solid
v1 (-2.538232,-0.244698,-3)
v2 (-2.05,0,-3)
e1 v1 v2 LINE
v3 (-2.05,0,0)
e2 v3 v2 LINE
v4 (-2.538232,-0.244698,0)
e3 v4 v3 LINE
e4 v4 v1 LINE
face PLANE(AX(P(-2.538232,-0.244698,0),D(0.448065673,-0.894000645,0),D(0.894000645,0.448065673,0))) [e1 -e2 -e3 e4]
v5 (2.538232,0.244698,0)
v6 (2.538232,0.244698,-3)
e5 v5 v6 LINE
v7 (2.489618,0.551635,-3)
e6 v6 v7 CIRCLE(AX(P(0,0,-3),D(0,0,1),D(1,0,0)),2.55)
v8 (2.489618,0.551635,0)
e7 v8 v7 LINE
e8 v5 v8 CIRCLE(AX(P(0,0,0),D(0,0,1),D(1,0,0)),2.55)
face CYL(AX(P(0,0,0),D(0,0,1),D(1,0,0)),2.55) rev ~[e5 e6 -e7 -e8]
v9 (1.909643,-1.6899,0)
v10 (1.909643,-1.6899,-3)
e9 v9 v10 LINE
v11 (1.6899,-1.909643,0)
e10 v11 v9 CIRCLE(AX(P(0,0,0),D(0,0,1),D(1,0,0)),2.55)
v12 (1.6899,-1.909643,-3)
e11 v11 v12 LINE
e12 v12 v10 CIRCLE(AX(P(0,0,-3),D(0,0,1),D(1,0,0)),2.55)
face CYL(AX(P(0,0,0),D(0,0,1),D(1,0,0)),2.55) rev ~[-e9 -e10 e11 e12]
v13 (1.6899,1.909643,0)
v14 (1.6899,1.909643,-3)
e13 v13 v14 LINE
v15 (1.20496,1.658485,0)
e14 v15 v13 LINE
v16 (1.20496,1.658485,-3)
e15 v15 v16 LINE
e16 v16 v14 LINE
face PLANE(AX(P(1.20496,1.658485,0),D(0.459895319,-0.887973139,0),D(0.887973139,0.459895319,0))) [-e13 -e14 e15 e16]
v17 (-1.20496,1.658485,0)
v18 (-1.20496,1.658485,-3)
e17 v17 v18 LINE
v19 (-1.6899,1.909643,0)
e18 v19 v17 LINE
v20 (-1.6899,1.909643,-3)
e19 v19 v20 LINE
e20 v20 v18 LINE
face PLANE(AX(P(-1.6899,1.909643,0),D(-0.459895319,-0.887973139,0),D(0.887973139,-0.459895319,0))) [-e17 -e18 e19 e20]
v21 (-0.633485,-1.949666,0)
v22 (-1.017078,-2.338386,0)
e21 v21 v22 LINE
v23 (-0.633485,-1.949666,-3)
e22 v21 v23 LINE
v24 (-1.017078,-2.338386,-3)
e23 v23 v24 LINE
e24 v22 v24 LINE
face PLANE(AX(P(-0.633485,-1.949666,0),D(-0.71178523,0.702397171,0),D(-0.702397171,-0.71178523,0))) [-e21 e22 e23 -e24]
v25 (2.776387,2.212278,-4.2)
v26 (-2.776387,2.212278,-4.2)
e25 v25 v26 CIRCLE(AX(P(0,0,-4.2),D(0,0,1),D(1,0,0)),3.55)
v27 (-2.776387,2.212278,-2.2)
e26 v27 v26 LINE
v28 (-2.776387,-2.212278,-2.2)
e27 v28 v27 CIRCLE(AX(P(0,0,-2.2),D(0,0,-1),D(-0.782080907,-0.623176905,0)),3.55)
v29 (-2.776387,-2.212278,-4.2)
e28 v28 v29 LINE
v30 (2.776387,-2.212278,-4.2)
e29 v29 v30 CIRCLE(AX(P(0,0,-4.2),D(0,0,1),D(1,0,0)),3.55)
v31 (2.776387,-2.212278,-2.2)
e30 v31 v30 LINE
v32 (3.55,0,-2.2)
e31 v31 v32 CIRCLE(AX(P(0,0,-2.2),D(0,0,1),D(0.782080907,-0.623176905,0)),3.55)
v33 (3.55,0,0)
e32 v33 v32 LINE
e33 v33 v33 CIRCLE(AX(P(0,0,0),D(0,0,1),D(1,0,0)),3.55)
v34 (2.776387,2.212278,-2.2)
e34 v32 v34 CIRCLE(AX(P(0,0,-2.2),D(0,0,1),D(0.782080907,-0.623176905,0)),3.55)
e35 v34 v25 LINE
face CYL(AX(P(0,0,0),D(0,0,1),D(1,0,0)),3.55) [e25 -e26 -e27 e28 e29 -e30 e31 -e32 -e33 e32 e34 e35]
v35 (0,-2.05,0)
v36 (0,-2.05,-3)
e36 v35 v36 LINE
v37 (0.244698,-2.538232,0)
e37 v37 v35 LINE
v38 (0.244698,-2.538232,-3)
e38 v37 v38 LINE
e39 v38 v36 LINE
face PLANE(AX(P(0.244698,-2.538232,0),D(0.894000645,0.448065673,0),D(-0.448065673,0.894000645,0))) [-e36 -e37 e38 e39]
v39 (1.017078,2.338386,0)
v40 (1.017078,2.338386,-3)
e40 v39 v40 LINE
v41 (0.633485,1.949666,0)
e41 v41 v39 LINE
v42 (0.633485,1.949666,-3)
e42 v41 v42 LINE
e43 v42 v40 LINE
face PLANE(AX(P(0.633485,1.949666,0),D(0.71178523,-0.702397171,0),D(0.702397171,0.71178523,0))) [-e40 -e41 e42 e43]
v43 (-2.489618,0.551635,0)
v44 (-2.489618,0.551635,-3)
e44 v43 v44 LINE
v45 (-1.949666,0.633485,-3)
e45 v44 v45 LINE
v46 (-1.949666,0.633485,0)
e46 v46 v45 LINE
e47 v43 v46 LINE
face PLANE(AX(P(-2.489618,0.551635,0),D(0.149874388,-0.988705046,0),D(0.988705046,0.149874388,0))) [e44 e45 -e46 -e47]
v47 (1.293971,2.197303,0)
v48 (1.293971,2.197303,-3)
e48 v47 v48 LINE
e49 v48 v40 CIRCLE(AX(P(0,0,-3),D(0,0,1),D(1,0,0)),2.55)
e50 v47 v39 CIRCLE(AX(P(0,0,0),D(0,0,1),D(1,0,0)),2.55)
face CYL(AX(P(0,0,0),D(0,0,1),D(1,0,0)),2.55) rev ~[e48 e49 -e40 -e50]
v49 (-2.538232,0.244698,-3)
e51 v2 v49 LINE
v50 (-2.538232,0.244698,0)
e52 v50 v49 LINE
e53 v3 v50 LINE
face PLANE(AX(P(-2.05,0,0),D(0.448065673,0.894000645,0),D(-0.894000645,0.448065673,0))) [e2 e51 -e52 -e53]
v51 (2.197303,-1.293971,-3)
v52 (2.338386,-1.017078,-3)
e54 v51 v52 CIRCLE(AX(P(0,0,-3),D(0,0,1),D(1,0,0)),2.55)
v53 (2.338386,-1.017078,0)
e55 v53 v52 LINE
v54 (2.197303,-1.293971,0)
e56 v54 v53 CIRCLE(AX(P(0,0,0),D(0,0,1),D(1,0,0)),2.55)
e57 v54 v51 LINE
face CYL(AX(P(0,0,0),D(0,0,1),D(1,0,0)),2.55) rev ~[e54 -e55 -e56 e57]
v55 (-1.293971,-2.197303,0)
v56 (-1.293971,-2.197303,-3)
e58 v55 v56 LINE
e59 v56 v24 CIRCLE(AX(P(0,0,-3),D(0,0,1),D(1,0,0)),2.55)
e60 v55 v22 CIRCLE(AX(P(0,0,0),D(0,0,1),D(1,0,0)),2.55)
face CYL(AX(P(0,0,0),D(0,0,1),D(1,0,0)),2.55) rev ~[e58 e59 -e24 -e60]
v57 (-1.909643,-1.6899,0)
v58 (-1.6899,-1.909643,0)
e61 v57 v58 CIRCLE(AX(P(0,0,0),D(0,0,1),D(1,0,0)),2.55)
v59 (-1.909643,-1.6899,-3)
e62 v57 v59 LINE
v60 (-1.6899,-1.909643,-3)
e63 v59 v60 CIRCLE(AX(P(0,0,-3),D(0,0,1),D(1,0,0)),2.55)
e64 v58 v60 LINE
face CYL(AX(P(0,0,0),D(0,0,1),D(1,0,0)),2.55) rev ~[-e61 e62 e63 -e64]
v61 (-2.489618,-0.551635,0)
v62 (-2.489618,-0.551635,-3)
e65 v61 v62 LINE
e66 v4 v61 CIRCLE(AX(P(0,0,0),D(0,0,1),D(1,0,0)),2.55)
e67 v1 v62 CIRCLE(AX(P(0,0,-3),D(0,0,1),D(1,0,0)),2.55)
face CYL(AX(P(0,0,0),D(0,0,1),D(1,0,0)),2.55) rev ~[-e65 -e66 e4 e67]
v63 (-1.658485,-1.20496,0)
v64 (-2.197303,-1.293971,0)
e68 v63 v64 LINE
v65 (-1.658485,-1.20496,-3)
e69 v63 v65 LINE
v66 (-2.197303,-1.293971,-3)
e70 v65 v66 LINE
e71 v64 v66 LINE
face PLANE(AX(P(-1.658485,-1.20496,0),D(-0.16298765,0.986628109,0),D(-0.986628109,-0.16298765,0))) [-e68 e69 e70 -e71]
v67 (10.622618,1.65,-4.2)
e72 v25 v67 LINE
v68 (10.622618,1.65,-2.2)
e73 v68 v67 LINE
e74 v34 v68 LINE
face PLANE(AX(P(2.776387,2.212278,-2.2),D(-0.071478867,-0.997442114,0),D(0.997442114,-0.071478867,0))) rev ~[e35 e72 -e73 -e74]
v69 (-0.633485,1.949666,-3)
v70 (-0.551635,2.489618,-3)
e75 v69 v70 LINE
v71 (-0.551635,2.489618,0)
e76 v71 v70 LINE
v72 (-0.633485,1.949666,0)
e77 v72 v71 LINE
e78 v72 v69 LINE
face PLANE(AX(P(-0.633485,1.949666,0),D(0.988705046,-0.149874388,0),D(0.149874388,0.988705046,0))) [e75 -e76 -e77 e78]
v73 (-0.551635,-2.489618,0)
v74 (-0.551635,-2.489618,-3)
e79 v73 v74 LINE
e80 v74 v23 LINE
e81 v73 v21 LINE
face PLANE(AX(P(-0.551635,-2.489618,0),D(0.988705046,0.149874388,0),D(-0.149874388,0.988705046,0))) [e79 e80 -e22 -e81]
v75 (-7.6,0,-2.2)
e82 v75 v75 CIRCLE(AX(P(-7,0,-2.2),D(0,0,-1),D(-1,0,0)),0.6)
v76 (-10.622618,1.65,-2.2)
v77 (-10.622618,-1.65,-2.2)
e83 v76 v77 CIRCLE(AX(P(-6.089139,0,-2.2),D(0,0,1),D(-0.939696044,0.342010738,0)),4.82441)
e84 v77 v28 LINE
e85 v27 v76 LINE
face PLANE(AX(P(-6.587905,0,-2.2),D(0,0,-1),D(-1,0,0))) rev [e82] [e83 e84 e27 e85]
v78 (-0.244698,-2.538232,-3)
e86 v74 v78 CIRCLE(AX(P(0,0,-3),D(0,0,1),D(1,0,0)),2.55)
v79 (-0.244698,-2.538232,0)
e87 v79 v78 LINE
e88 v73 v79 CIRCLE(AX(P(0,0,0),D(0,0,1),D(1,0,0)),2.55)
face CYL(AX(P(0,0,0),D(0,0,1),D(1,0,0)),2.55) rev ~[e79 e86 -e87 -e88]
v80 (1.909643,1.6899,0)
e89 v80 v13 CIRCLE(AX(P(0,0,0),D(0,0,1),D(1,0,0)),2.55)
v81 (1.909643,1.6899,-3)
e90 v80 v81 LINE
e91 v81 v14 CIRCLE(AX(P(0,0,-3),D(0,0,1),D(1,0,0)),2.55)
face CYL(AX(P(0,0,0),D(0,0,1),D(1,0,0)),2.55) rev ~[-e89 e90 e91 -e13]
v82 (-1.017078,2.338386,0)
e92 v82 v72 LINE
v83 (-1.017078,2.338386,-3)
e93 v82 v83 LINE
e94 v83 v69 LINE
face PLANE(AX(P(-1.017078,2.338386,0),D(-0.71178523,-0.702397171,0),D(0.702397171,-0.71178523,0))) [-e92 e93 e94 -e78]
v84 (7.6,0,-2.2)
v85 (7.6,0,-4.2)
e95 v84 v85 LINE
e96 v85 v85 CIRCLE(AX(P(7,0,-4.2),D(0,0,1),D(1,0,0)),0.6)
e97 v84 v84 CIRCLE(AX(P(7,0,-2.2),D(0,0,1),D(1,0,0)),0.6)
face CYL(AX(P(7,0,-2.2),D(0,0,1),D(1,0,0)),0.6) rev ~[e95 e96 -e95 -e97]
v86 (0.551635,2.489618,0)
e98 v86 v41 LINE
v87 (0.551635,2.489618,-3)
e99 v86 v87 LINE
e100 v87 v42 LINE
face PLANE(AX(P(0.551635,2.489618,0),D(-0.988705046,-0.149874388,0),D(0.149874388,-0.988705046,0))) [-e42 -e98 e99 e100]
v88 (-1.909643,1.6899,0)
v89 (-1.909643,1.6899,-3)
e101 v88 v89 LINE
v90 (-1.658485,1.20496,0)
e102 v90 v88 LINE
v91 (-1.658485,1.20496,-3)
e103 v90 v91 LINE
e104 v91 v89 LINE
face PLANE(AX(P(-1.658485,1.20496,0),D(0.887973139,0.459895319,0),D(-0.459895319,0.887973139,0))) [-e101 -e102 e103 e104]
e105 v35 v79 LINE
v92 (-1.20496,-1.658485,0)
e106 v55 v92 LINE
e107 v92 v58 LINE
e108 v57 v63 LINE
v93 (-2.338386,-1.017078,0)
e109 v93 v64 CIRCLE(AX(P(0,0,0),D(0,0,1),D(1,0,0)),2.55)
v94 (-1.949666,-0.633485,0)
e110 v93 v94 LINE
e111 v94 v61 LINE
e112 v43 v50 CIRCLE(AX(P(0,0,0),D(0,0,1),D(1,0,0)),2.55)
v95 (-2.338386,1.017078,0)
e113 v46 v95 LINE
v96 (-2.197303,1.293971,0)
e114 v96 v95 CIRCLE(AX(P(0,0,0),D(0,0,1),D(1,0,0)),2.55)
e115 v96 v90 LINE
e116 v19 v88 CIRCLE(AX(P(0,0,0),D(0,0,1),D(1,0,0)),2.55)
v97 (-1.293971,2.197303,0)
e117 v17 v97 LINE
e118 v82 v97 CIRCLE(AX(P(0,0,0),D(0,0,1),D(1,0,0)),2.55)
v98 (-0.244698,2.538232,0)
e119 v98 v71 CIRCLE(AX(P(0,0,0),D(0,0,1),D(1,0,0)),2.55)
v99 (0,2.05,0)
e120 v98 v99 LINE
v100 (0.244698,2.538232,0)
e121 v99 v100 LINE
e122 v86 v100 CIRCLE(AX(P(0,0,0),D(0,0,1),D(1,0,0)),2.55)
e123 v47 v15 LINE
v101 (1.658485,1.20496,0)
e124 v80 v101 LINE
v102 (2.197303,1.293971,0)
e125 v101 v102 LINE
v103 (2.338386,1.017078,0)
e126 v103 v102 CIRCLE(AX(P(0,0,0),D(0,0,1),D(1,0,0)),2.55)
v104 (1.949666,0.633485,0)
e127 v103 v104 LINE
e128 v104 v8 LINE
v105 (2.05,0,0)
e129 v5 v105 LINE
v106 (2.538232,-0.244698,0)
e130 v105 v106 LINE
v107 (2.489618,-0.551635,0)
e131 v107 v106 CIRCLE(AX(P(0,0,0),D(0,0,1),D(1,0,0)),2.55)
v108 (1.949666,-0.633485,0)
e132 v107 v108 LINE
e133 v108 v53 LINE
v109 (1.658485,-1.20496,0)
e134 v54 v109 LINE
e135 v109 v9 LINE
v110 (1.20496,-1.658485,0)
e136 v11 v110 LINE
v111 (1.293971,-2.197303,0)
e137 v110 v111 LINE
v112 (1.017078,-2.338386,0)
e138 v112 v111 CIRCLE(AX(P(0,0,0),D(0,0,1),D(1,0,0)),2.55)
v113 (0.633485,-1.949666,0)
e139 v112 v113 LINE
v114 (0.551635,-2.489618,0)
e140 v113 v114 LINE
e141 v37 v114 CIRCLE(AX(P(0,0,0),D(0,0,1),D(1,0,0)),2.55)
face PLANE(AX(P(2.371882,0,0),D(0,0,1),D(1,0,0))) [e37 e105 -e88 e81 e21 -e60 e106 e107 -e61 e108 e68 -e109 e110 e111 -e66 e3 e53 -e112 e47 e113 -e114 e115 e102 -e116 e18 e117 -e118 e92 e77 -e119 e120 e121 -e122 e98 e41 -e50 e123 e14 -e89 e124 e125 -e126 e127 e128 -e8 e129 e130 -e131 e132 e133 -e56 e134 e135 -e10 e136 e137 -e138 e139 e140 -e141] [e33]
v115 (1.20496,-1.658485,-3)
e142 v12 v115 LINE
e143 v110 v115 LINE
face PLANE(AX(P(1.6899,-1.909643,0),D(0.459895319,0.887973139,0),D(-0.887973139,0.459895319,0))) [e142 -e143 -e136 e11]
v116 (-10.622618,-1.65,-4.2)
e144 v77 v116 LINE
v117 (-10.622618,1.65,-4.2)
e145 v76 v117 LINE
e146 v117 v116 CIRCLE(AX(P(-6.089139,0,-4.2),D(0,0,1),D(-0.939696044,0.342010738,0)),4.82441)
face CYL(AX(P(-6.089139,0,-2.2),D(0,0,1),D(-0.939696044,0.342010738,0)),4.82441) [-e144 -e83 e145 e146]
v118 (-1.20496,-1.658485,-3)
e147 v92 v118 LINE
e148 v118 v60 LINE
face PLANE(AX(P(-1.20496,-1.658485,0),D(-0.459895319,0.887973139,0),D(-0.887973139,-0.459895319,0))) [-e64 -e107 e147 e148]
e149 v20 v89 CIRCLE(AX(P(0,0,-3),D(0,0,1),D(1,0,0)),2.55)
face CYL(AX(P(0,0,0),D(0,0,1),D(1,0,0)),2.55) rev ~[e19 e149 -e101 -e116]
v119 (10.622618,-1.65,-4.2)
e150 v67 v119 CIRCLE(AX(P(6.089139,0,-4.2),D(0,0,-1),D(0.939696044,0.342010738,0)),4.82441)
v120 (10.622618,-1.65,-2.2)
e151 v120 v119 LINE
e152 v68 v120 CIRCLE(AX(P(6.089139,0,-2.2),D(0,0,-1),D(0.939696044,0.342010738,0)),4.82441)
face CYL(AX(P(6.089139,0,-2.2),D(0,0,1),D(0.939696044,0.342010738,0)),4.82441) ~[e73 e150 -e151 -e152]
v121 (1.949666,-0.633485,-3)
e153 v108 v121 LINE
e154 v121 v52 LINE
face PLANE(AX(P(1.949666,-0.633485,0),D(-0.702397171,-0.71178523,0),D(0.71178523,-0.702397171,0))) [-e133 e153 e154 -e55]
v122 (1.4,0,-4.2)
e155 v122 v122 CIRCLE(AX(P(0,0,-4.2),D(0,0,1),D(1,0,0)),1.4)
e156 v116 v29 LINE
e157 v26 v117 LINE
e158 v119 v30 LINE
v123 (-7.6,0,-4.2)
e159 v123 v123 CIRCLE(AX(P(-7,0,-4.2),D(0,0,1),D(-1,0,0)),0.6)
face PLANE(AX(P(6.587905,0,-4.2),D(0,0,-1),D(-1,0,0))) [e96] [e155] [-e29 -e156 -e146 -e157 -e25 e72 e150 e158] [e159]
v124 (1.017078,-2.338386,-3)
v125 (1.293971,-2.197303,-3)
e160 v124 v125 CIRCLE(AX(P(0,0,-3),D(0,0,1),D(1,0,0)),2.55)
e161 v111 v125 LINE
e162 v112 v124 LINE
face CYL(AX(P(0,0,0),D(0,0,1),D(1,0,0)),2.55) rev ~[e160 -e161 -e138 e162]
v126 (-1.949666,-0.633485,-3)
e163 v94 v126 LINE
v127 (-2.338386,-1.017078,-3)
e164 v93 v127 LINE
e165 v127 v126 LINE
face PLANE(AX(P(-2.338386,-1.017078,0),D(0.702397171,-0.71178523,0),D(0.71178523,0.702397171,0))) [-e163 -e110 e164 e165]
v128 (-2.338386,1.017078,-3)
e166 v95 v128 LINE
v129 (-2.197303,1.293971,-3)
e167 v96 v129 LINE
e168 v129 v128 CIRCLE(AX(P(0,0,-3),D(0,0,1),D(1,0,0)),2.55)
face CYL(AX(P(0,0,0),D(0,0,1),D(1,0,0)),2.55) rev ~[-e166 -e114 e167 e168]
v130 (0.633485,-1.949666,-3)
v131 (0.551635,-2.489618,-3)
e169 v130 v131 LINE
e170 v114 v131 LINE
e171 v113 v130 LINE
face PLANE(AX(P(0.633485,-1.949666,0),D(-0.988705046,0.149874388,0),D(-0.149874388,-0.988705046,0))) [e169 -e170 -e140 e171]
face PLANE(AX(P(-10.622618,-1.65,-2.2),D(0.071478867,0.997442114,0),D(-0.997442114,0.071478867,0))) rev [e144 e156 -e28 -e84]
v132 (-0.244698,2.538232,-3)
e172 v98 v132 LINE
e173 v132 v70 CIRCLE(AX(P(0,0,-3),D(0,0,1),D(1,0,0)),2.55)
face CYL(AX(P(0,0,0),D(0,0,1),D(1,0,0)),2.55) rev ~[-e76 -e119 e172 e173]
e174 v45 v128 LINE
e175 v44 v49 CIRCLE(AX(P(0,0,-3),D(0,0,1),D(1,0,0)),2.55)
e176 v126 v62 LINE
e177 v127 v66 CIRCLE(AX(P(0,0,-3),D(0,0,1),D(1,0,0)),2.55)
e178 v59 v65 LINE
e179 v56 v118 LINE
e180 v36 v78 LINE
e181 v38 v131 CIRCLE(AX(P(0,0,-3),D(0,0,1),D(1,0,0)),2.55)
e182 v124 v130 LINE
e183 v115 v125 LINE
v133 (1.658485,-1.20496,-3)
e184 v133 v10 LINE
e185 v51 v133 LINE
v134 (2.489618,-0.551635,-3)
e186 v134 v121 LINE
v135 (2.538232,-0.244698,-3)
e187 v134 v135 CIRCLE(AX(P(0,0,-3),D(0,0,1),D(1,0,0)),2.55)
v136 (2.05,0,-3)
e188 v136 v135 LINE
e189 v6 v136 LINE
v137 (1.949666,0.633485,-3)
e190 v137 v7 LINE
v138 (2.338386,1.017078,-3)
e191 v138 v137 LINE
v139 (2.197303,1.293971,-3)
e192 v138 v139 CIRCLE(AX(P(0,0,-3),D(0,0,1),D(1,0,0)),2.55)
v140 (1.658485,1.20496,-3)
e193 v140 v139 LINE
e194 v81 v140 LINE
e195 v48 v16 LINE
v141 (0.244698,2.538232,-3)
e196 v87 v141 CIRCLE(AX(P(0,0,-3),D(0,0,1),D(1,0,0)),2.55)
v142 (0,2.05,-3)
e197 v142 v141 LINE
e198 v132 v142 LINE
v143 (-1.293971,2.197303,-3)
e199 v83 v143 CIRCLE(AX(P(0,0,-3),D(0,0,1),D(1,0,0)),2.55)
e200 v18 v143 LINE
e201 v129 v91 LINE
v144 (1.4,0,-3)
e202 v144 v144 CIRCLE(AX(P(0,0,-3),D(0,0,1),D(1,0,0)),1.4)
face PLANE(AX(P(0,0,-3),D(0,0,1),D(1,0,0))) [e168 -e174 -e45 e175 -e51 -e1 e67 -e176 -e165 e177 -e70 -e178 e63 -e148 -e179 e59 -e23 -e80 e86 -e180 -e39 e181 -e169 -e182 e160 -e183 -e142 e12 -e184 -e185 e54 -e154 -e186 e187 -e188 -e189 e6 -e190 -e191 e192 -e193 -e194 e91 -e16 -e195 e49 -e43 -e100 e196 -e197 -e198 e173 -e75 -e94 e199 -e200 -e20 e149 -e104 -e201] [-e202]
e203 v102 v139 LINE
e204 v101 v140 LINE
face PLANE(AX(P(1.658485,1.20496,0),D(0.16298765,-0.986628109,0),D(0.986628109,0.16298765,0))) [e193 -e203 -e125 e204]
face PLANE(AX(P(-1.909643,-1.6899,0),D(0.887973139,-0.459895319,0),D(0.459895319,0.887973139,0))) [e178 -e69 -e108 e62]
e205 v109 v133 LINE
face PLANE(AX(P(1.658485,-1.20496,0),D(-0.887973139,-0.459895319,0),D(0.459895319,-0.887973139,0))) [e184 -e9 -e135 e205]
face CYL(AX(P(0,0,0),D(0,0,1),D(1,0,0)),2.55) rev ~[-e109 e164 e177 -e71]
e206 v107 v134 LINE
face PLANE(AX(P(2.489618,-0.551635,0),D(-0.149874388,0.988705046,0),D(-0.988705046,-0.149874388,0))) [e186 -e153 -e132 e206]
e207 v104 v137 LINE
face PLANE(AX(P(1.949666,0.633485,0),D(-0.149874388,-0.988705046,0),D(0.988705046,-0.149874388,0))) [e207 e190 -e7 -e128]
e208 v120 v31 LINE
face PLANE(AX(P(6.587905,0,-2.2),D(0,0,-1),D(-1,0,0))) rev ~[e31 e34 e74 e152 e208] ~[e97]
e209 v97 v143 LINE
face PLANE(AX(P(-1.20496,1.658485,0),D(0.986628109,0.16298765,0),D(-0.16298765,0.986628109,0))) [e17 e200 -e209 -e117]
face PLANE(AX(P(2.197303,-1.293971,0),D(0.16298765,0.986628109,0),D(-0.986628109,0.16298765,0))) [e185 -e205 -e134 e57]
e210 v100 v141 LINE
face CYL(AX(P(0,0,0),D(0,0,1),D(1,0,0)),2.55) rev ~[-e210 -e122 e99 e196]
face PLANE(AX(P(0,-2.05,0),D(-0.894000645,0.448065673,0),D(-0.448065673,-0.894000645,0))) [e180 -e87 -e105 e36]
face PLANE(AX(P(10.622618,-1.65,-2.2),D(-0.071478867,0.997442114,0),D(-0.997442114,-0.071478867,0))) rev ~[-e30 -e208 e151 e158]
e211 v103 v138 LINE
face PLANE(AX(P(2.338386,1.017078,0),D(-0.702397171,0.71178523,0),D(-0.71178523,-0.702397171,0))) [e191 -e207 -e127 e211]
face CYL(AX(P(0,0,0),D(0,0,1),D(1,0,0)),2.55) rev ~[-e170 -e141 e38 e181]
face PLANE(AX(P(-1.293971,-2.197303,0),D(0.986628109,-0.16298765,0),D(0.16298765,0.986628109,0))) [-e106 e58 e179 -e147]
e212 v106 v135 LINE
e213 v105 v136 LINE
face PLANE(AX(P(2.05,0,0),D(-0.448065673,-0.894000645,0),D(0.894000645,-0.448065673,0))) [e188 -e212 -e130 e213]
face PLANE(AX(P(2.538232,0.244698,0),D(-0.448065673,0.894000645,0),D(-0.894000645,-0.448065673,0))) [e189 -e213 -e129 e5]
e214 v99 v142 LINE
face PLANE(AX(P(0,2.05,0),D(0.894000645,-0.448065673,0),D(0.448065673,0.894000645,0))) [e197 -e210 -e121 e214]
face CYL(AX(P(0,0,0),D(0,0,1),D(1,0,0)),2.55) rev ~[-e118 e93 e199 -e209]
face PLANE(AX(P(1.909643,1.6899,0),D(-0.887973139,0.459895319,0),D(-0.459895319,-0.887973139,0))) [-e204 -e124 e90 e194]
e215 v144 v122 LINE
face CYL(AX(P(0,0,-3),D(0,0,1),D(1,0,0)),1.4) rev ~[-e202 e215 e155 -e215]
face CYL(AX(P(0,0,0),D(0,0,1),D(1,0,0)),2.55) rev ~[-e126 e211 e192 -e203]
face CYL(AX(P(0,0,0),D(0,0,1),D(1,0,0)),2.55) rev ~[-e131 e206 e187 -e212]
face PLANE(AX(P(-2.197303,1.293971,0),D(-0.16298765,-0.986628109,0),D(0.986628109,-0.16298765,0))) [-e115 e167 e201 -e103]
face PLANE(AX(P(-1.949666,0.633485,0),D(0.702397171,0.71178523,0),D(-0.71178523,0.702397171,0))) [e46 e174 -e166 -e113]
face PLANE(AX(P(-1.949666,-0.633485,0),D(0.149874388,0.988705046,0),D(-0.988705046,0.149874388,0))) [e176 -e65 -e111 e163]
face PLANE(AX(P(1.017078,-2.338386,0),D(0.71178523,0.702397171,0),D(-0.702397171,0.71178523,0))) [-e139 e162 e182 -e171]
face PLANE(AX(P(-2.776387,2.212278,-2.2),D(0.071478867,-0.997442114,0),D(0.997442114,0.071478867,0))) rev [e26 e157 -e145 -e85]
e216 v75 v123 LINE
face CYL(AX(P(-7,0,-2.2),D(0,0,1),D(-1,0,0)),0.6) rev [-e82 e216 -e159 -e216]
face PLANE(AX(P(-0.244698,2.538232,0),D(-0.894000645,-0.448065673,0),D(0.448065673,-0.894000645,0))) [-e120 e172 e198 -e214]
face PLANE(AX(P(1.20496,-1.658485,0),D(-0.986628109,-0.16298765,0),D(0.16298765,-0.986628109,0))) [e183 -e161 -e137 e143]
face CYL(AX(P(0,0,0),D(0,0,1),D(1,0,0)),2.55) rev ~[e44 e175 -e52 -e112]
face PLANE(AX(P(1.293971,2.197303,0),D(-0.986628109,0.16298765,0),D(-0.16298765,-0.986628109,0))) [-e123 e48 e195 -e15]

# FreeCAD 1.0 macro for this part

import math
import FreeCAD as App
import Part
import Sketcher

V = App.Vector
Q = App.Units.Quantity

doc = App.newDocument("Part")
body = doc.addObject("PartDesign::Body", "Body")

# Sketch on XY plane
sketch1 = body.newObject("Sketcher::SketchObject", "Sketch")
sketch1.AttachmentSupport = (doc.getObject("XY_Plane"), [""])
sketch1.MapMode = "FlatFace"
sketch1.addGeometry(Part.Circle(V(0, 0, 0), V(0, 0, 1), 3.55), False)
sketch1.addConstraint(Sketcher.Constraint("Coincident", 0, 3, -1, 1))
sketch1.addConstraint(Sketcher.Constraint("Diameter", 0, Q("7.1 mm")))
pad1 = body.newObject("PartDesign::Pad", "Pad")
pad1.Profile = sketch1
pad1.Length = 4.2
pad1.Reversed = True

# Sketch on XY plane
sketch2 = body.newObject("Sketcher::SketchObject", "Sketch001")
sketch2.AttachmentSupport = (doc.getObject("XY_Plane"), [""])
sketch2.MapMode = "FlatFace"
sketch2.AttachmentOffset = App.Placement(V(0, 0, -2.2), App.Rotation())
sketch2.addGeometry(Part.LineSegment(V(10.622618, 1.65, 0), V(2.776387, 2.212278, 0)), False)
sketch2.addGeometry(Part.ArcOfCircle(Part.Circle(V(0, 0, 0), V(0, 0, 1), 3.55), math.radians(-38.548502), math.radians(38.548502)), False)
sketch2.addGeometry(Part.LineSegment(V(2.776387, -2.212278, 0), V(10.622618, -1.65, 0)), False)
sketch2.addGeometry(Part.ArcOfCircle(Part.Circle(V(6.089139, 0, 0), V(0, 0, 1), 4.82441), math.radians(-19.999427), math.radians(19.999427)), False)
sketch2.addConstraint(Sketcher.Constraint("Coincident", 0, 2, 1, 2))
sketch2.addConstraint(Sketcher.Constraint("Coincident", 1, 1, 2, 1))
sketch2.addConstraint(Sketcher.Constraint("Coincident", 2, 2, 3, 1))
sketch2.addConstraint(Sketcher.Constraint("Coincident", 3, 2, 0, 1))
sketch2.addConstraint(Sketcher.Constraint("Coincident", 1, 3, -1, 1))
sketch2.addConstraint(Sketcher.Constraint("Symmetric", 2, 2, 3, 2, -1))
sketch2.addConstraint(Sketcher.Constraint("Vertical", 0, 2, 1, 1))
sketch2.addConstraint(Sketcher.Constraint("Radius", 1, Q("3.55 mm")))
sketch2.addConstraint(Sketcher.Constraint("DistanceY", 2, 2, 3, 2, Q("3.3 mm")))
sketch2.addConstraint(Sketcher.Constraint("Radius", 3, Q("4.82441 mm")))
sketch2.addConstraint(Sketcher.Constraint("Distance", 0, Q("7.866352 mm")))
sketch2.addConstraint(Sketcher.Constraint("DistanceX", -1, 1, 3, 3, Q("6.089139 mm")))
pad2 = body.newObject("PartDesign::Pad", "Pad001")
pad2.Profile = sketch2
pad2.Length = 2
pad2.Reversed = True

# Sketch on XY plane
sketch3 = body.newObject("Sketcher::SketchObject", "Sketch002")
sketch3.AttachmentSupport = (doc.getObject("XY_Plane"), [""])
sketch3.MapMode = "FlatFace"
sketch3.addGeometry(Part.Circle(V(0, 0, 0), V(0, 0, 1), 2.55), False)
sketch3.addConstraint(Sketcher.Constraint("Coincident", 0, 3, -1, 1))
sketch3.addConstraint(Sketcher.Constraint("Diameter", 0, Q("5.1 mm")))
pocket1 = body.newObject("PartDesign::Pocket", "Pocket")
pocket1.Profile = sketch3
pocket1.Length = 3

# Sketch on XY plane
sketch4 = body.newObject("Sketcher::SketchObject", "Sketch003")
sketch4.AttachmentSupport = (doc.getObject("XY_Plane"), [""])
sketch4.MapMode = "FlatFace"
sketch4.addGeometry(Part.LineSegment(V(-0.244698, 2.538232, 0), V(0, 2.05, 0)), False)
sketch4.addGeometry(Part.LineSegment(V(0, 2.05, 0), V(0.244698, 2.538232, 0)), False)
sketch4.addGeometry(Part.ArcOfCircle(Part.Circle(V(0, 0, 0), V(0, 0, 1), 2.55), math.radians(84.493426), math.radians(95.506574)), False)
sketch4.addGeometry(Part.LineSegment(V(0.551635, 2.489618, 0), V(0.633485, 1.949666, 0)), False)
sketch4.addGeometry(Part.LineSegment(V(0.633485, 1.949666, 0), V(1.017078, 2.338386, 0)), False)
sketch4.addGeometry(Part.ArcOfCircle(Part.Circle(V(0, 0, 0), V(0, 0, 1), 2.55), math.radians(66.493425), math.radians(77.506575)), False)
sketch4.addGeometry(Part.LineSegment(V(1.293971, 2.197303, 0), V(1.20496, 1.658485, 0)), False)
sketch4.addGeometry(Part.LineSegment(V(1.20496, 1.658485, 0), V(1.6899, 1.909643, 0)), False)
sketch4.addGeometry(Part.ArcOfCircle(Part.Circle(V(0, 0, 0), V(0, 0, 1), 2.55), math.radians(48.493426), math.radians(59.506574)), False)
sketch4.addGeometry(Part.LineSegment(V(1.909643, 1.6899, 0), V(1.658485, 1.20496, 0)), False)
sketch4.addGeometry(Part.LineSegment(V(1.658485, 1.20496, 0), V(2.197303, 1.293971, 0)), False)
sketch4.addGeometry(Part.ArcOfCircle(Part.Circle(V(0, 0, 0), V(0, 0, 1), 2.55), math.radians(30.493426), math.radians(41.506574)), False)
sketch4.addGeometry(Part.LineSegment(V(2.338386, 1.017078, 0), V(1.949666, 0.633485, 0)), False)
sketch4.addGeometry(Part.LineSegment(V(1.949666, 0.633485, 0), V(2.489618, 0.551635, 0)), False)
sketch4.addGeometry(Part.ArcOfCircle(Part.Circle(V(0, 0, 0), V(0, 0, 1), 2.55), math.radians(12.493425), math.radians(23.506575)), False)
sketch4.addGeometry(Part.LineSegment(V(2.538232, 0.244698, 0), V(2.05, 0, 0)), False)
sketch4.addGeometry(Part.LineSegment(V(2.05, 0, 0), V(2.538232, -0.244698, 0)), False)
sketch4.addGeometry(Part.ArcOfCircle(Part.Circle(V(0, 0, 0), V(0, 0, 1), 2.55), math.radians(-5.506574), math.radians(5.506574)), False)
sketch4.addGeometry(Part.LineSegment(V(2.489618, -0.551635, 0), V(1.949666, -0.633485, 0)), False)
sketch4.addGeometry(Part.LineSegment(V(1.949666, -0.633485, 0), V(2.338386, -1.017078, 0)), False)
sketch4.addGeometry(Part.ArcOfCircle(Part.Circle(V(0, 0, 0), V(0, 0, 1), 2.55), math.radians(-23.506575), math.radians(-12.493425)), False)
sketch4.addGeometry(Part.LineSegment(V(2.197303, -1.293971, 0), V(1.658485, -1.20496, 0)), False)
sketch4.addGeometry(Part.LineSegment(V(1.658485, -1.20496, 0), V(1.909643, -1.6899, 0)), False)
sketch4.addGeometry(Part.ArcOfCircle(Part.Circle(V(0, 0, 0), V(0, 0, 1), 2.55), math.radians(-41.506574), math.radians(-30.493426)), False)
sketch4.addGeometry(Part.LineSegment(V(1.6899, -1.909643, 0), V(1.20496, -1.658485, 0)), False)
sketch4.addGeometry(Part.LineSegment(V(1.20496, -1.658485, 0), V(1.293971, -2.197303, 0)), False)
sketch4.addGeometry(Part.ArcOfCircle(Part.Circle(V(0, 0, 0), V(0, 0, 1), 2.55), math.radians(-59.506574), math.radians(-48.493426)), False)
sketch4.addGeometry(Part.LineSegment(V(1.017078, -2.338386, 0), V(0.633485, -1.949666, 0)), False)
sketch4.addGeometry(Part.LineSegment(V(0.633485, -1.949666, 0), V(0.551635, -2.489618, 0)), False)
sketch4.addGeometry(Part.ArcOfCircle(Part.Circle(V(0, 0, 0), V(0, 0, 1), 2.55), math.radians(-77.506575), math.radians(-66.493425)), False)
sketch4.addGeometry(Part.LineSegment(V(0.244698, -2.538232, 0), V(0, -2.05, 0)), False)
sketch4.addGeometry(Part.LineSegment(V(0, -2.05, 0), V(-0.244698, -2.538232, 0)), False)
sketch4.addGeometry(Part.ArcOfCircle(Part.Circle(V(0, 0, 0), V(0, 0, 1), 2.55), math.radians(-95.506574), math.radians(-84.493426)), False)
sketch4.addGeometry(Part.LineSegment(V(-0.551635, -2.489618, 0), V(-0.633485, -1.949666, 0)), False)
sketch4.addGeometry(Part.LineSegment(V(-0.633485, -1.949666, 0), V(-1.017078, -2.338386, 0)), False)
sketch4.addGeometry(Part.ArcOfCircle(Part.Circle(V(0, 0, 0), V(0, 0, 1), 2.55), math.radians(-113.506575), math.radians(-102.493425)), False)
sketch4.addGeometry(Part.LineSegment(V(-1.293971, -2.197303, 0), V(-1.20496, -1.658485, 0)), False)
sketch4.addGeometry(Part.LineSegment(V(-1.20496, -1.658485, 0), V(-1.6899, -1.909643, 0)), False)
sketch4.addGeometry(Part.ArcOfCircle(Part.Circle(V(0, 0, 0), V(0, 0, 1), 2.55), math.radians(-131.506574), math.radians(-120.493426)), False)
sketch4.addGeometry(Part.LineSegment(V(-1.909643, -1.6899, 0), V(-1.658485, -1.20496, 0)), False)
sketch4.addGeometry(Part.LineSegment(V(-1.658485, -1.20496, 0), V(-2.197303, -1.293971, 0)), False)
sketch4.addGeometry(Part.ArcOfCircle(Part.Circle(V(0, 0, 0), V(0, 0, 1), 2.55), math.radians(-149.506574), math.radians(-138.493426)), False)
sketch4.addGeometry(Part.LineSegment(V(-2.338386, -1.017078, 0), V(-1.949666, -0.633485, 0)), False)
sketch4.addGeometry(Part.LineSegment(V(-1.949666, -0.633485, 0), V(-2.489618, -0.551635, 0)), False)
sketch4.addGeometry(Part.ArcOfCircle(Part.Circle(V(0, 0, 0), V(0, 0, 1), 2.55), math.radians(-167.506575), math.radians(-156.493425)), False)
sketch4.addGeometry(Part.LineSegment(V(-2.538232, -0.244698, 0), V(-2.05, 0, 0)), False)
sketch4.addGeometry(Part.LineSegment(V(-2.05, 0, 0), V(-2.538232, 0.244698, 0)), False)
sketch4.addGeometry(Part.ArcOfCircle(Part.Circle(V(0, 0, 0), V(0, 0, 1), 2.55), math.radians(174.493426), math.radians(185.506574)), False)
sketch4.addGeometry(Part.LineSegment(V(-2.489618, 0.551635, 0), V(-1.949666, 0.633485, 0)), False)
sketch4.addGeometry(Part.LineSegment(V(-1.949666, 0.633485, 0), V(-2.338386, 1.017078, 0)), False)
sketch4.addGeometry(Part.ArcOfCircle(Part.Circle(V(0, 0, 0), V(0, 0, 1), 2.55), math.radians(156.493425), math.radians(167.506575)), False)
sketch4.addGeometry(Part.LineSegment(V(-2.197303, 1.293971, 0), V(-1.658485, 1.20496, 0)), False)
sketch4.addGeometry(Part.LineSegment(V(-1.658485, 1.20496, 0), V(-1.909643, 1.6899, 0)), False)
sketch4.addGeometry(Part.ArcOfCircle(Part.Circle(V(0, 0, 0), V(0, 0, 1), 2.55), math.radians(138.493426), math.radians(149.506574)), False)
sketch4.addGeometry(Part.LineSegment(V(-1.6899, 1.909643, 0), V(-1.20496, 1.658485, 0)), False)
sketch4.addGeometry(Part.LineSegment(V(-1.20496, 1.658485, 0), V(-1.293971, 2.197303, 0)), False)
sketch4.addGeometry(Part.ArcOfCircle(Part.Circle(V(0, 0, 0), V(0, 0, 1), 2.55), math.radians(120.493426), math.radians(131.506574)), False)
sketch4.addGeometry(Part.LineSegment(V(-1.017078, 2.338386, 0), V(-0.633485, 1.949666, 0)), False)
sketch4.addGeometry(Part.LineSegment(V(-0.633485, 1.949666, 0), V(-0.551635, 2.489618, 0)), False)
sketch4.addGeometry(Part.ArcOfCircle(Part.Circle(V(0, 0, 0), V(0, 0, 1), 2.55), math.radians(102.493425), math.radians(113.506575)), False)
sketch4.addConstraint(Sketcher.Constraint("Coincident", 0, 2, 1, 1))
sketch4.addConstraint(Sketcher.Constraint("Coincident", 1, 2, 2, 1))
sketch4.addConstraint(Sketcher.Constraint("Coincident", 2, 2, 0, 1))
sketch4.addConstraint(Sketcher.Constraint("Coincident", 3, 2, 4, 1))
sketch4.addConstraint(Sketcher.Constraint("Coincident", 4, 2, 5, 1))
sketch4.addConstraint(Sketcher.Constraint("Coincident", 5, 2, 3, 1))
sketch4.addConstraint(Sketcher.Constraint("Coincident", 6, 2, 7, 1))
sketch4.addConstraint(Sketcher.Constraint("Coincident", 7, 2, 8, 1))
sketch4.addConstraint(Sketcher.Constraint("Coincident", 8, 2, 6, 1))
sketch4.addConstraint(Sketcher.Constraint("Coincident", 9, 2, 10, 1))
sketch4.addConstraint(Sketcher.Constraint("Coincident", 10, 2, 11, 1))
sketch4.addConstraint(Sketcher.Constraint("Coincident", 11, 2, 9, 1))
sketch4.addConstraint(Sketcher.Constraint("Coincident", 12, 2, 13, 1))
sketch4.addConstraint(Sketcher.Constraint("Coincident", 13, 2, 14, 1))
sketch4.addConstraint(Sketcher.Constraint("Coincident", 14, 2, 12, 1))
sketch4.addConstraint(Sketcher.Constraint("Coincident", 15, 2, 16, 1))
sketch4.addConstraint(Sketcher.Constraint("Coincident", 16, 2, 17, 1))
sketch4.addConstraint(Sketcher.Constraint("Coincident", 17, 2, 15, 1))
sketch4.addConstraint(Sketcher.Constraint("Coincident", 18, 2, 19, 1))
sketch4.addConstraint(Sketcher.Constraint("Coincident", 19, 2, 20, 1))
sketch4.addConstraint(Sketcher.Constraint("Coincident", 20, 2, 18, 1))
sketch4.addConstraint(Sketcher.Constraint("Coincident", 21, 2, 22, 1))
sketch4.addConstraint(Sketcher.Constraint("Coincident", 22, 2, 23, 1))
sketch4.addConstraint(Sketcher.Constraint("Coincident", 23, 2, 21, 1))
sketch4.addConstraint(Sketcher.Constraint("Coincident", 24, 2, 25, 1))
sketch4.addConstraint(Sketcher.Constraint("Coincident", 25, 2, 26, 1))
sketch4.addConstraint(Sketcher.Constraint("Coincident", 26, 2, 24, 1))
sketch4.addConstraint(Sketcher.Constraint("Coincident", 27, 2, 28, 1))
sketch4.addConstraint(Sketcher.Constraint("Coincident", 28, 2, 29, 1))
sketch4.addConstraint(Sketcher.Constraint("Coincident", 29, 2, 27, 1))
sketch4.addConstraint(Sketcher.Constraint("Coincident", 30, 2, 31, 1))
sketch4.addConstraint(Sketcher.Constraint("Coincident", 31, 2, 32, 1))
sketch4.addConstraint(Sketcher.Constraint("Coincident", 32, 2, 30, 1))
sketch4.addConstraint(Sketcher.Constraint("Coincident", 33, 2, 34, 1))
sketch4.addConstraint(Sketcher.Constraint("Coincident", 34, 2, 35, 1))
sketch4.addConstraint(Sketcher.Constraint("Coincident", 35, 2, 33, 1))
sketch4.addConstraint(Sketcher.Constraint("Coincident", 36, 2, 37, 1))
sketch4.addConstraint(Sketcher.Constraint("Coincident", 37, 2, 38, 1))
sketch4.addConstraint(Sketcher.Constraint("Coincident", 38, 2, 36, 1))
sketch4.addConstraint(Sketcher.Constraint("Coincident", 39, 2, 40, 1))
sketch4.addConstraint(Sketcher.Constraint("Coincident", 40, 2, 41, 1))
sketch4.addConstraint(Sketcher.Constraint("Coincident", 41, 2, 39, 1))
sketch4.addConstraint(Sketcher.Constraint("Coincident", 42, 2, 43, 1))
sketch4.addConstraint(Sketcher.Constraint("Coincident", 43, 2, 44, 1))
sketch4.addConstraint(Sketcher.Constraint("Coincident", 44, 2, 42, 1))
sketch4.addConstraint(Sketcher.Constraint("Coincident", 45, 2, 46, 1))
sketch4.addConstraint(Sketcher.Constraint("Coincident", 46, 2, 47, 1))
sketch4.addConstraint(Sketcher.Constraint("Coincident", 47, 2, 45, 1))
sketch4.addConstraint(Sketcher.Constraint("Coincident", 48, 2, 49, 1))
sketch4.addConstraint(Sketcher.Constraint("Coincident", 49, 2, 50, 1))
sketch4.addConstraint(Sketcher.Constraint("Coincident", 50, 2, 48, 1))
sketch4.addConstraint(Sketcher.Constraint("Coincident", 51, 2, 52, 1))
sketch4.addConstraint(Sketcher.Constraint("Coincident", 52, 2, 53, 1))
sketch4.addConstraint(Sketcher.Constraint("Coincident", 53, 2, 51, 1))
sketch4.addConstraint(Sketcher.Constraint("Coincident", 54, 2, 55, 1))
sketch4.addConstraint(Sketcher.Constraint("Coincident", 55, 2, 56, 1))
sketch4.addConstraint(Sketcher.Constraint("Coincident", 56, 2, 54, 1))
sketch4.addConstraint(Sketcher.Constraint("Coincident", 57, 2, 58, 1))
sketch4.addConstraint(Sketcher.Constraint("Coincident", 58, 2, 59, 1))
sketch4.addConstraint(Sketcher.Constraint("Coincident", 59, 2, 57, 1))
sketch4.addConstraint(Sketcher.Constraint("Coincident", 2, 3, -1, 1))
sketch4.addConstraint(Sketcher.Constraint("Coincident", 5, 3, -1, 1))
sketch4.addConstraint(Sketcher.Constraint("Coincident", 8, 3, -1, 1))
sketch4.addConstraint(Sketcher.Constraint("Coincident", 11, 3, -1, 1))
sketch4.addConstraint(Sketcher.Constraint("Coincident", 14, 3, -1, 1))
sketch4.addConstraint(Sketcher.Constraint("Coincident", 17, 3, -1, 1))
sketch4.addConstraint(Sketcher.Constraint("Coincident", 20, 3, -1, 1))
sketch4.addConstraint(Sketcher.Constraint("Coincident", 23, 3, -1, 1))
sketch4.addConstraint(Sketcher.Constraint("Coincident", 26, 3, -1, 1))
sketch4.addConstraint(Sketcher.Constraint("Coincident", 29, 3, -1, 1))
sketch4.addConstraint(Sketcher.Constraint("Coincident", 32, 3, -1, 1))
sketch4.addConstraint(Sketcher.Constraint("Coincident", 35, 3, -1, 1))
sketch4.addConstraint(Sketcher.Constraint("Coincident", 38, 3, -1, 1))
sketch4.addConstraint(Sketcher.Constraint("Coincident", 41, 3, -1, 1))
sketch4.addConstraint(Sketcher.Constraint("Coincident", 44, 3, -1, 1))
sketch4.addConstraint(Sketcher.Constraint("Coincident", 47, 3, -1, 1))
sketch4.addConstraint(Sketcher.Constraint("Coincident", 50, 3, -1, 1))
sketch4.addConstraint(Sketcher.Constraint("Coincident", 53, 3, -1, 1))
sketch4.addConstraint(Sketcher.Constraint("Coincident", 56, 3, -1, 1))
sketch4.addConstraint(Sketcher.Constraint("Coincident", 59, 3, -1, 1))
sketch4.addConstraint(Sketcher.Constraint("Equal", 2, 5))
sketch4.addConstraint(Sketcher.Constraint("Equal", 5, 8))
sketch4.addConstraint(Sketcher.Constraint("Equal", 8, 11))
sketch4.addConstraint(Sketcher.Constraint("Equal", 11, 14))
sketch4.addConstraint(Sketcher.Constraint("Equal", 14, 17))
sketch4.addConstraint(Sketcher.Constraint("Equal", 17, 20))
sketch4.addConstraint(Sketcher.Constraint("Equal", 20, 23))
sketch4.addConstraint(Sketcher.Constraint("Equal", 23, 26))
sketch4.addConstraint(Sketcher.Constraint("Equal", 26, 29))
sketch4.addConstraint(Sketcher.Constraint("Equal", 29, 32))
sketch4.addConstraint(Sketcher.Constraint("Equal", 32, 35))
sketch4.addConstraint(Sketcher.Constraint("Equal", 35, 38))
sketch4.addConstraint(Sketcher.Constraint("Equal", 38, 41))
sketch4.addConstraint(Sketcher.Constraint("Equal", 41, 44))
sketch4.addConstraint(Sketcher.Constraint("Equal", 44, 47))
sketch4.addConstraint(Sketcher.Constraint("Equal", 47, 50))
sketch4.addConstraint(Sketcher.Constraint("Equal", 50, 53))
sketch4.addConstraint(Sketcher.Constraint("Equal", 53, 56))
sketch4.addConstraint(Sketcher.Constraint("Equal", 56, 59))
sketch4.addConstraint(Sketcher.Constraint("Symmetric", 0, 2, 30, 2, -1, 1))
sketch4.addConstraint(Sketcher.Constraint("Symmetric", 3, 2, 33, 2, -1, 1))
sketch4.addConstraint(Sketcher.Constraint("Symmetric", 6, 2, 36, 2, -1, 1))
sketch4.addConstraint(Sketcher.Constraint("Symmetric", 9, 2, 39, 2, -1, 1))
sketch4.addConstraint(Sketcher.Constraint("Symmetric", 12, 2, 42, 2, -1, 1))
sketch4.addConstraint(Sketcher.Constraint("Symmetric", 15, 2, 45, 2, -1, 1))
sketch4.addConstraint(Sketcher.Constraint("Symmetric", 18, 2, 48, 2, -1, 1))
sketch4.addConstraint(Sketcher.Constraint("Symmetric", 21, 2, 51, 2, -1, 1))
sketch4.addConstraint(Sketcher.Constraint("Symmetric", 24, 2, 54, 2, -1, 1))
sketch4.addConstraint(Sketcher.Constraint("Symmetric", 27, 2, 57, 2, -1, 1))
sketch4.addConstraint(Sketcher.Constraint("Symmetric", 27, 2, 33, 2, -2))
sketch4.addConstraint(Sketcher.Constraint("Symmetric", 24, 2, 36, 2, -2))
sketch4.addConstraint(Sketcher.Constraint("Symmetric", 21, 2, 39, 2, -2))
sketch4.addConstraint(Sketcher.Constraint("Symmetric", 18, 2, 42, 2, -2))
sketch4.addConstraint(Sketcher.Constraint("PointOnObject", 0, 2, -2))
sketch4.addConstraint(Sketcher.Constraint("PointOnObject", 15, 2, -1))
sketch4.addConstraint(Sketcher.Constraint("Perpendicular", 0, 15))
sketch4.addConstraint(Sketcher.Constraint("Perpendicular", 1, 16))
sketch4.addConstraint(Sketcher.Constraint("Perpendicular", 3, 18))
sketch4.addConstraint(Sketcher.Constraint("Perpendicular", 4, 19))
sketch4.addConstraint(Sketcher.Constraint("Perpendicular", 6, 21))
sketch4.addConstraint(Sketcher.Constraint("Perpendicular", 7, 22))
sketch4.addConstraint(Sketcher.Constraint("Perpendicular", 9, 24))
sketch4.addConstraint(Sketcher.Constraint("Perpendicular", 10, 25))
sketch4.addConstraint(Sketcher.Constraint("Perpendicular", 12, 27))
sketch4.addConstraint(Sketcher.Constraint("Perpendicular", 13, 28))
sketch4.addConstraint(Sketcher.Constraint("Perpendicular", 15, 30))
sketch4.addConstraint(Sketcher.Constraint("Perpendicular", 16, 31))
sketch4.addConstraint(Sketcher.Constraint("Perpendicular", 18, 33))
sketch4.addConstraint(Sketcher.Constraint("Perpendicular", 19, 34))
sketch4.addConstraint(Sketcher.Constraint("Perpendicular", 21, 36))
sketch4.addConstraint(Sketcher.Constraint("Perpendicular", 22, 37))
sketch4.addConstraint(Sketcher.Constraint("Perpendicular", 24, 39))
sketch4.addConstraint(Sketcher.Constraint("Perpendicular", 25, 40))
sketch4.addConstraint(Sketcher.Constraint("Perpendicular", 27, 42))
sketch4.addConstraint(Sketcher.Constraint("Perpendicular", 28, 43))
sketch4.addConstraint(Sketcher.Constraint("Perpendicular", 30, 45))
sketch4.addConstraint(Sketcher.Constraint("Perpendicular", 31, 46))
sketch4.addConstraint(Sketcher.Constraint("Perpendicular", 33, 48))
sketch4.addConstraint(Sketcher.Constraint("Perpendicular", 34, 49))
sketch4.addConstraint(Sketcher.Constraint("Perpendicular", 36, 51))
sketch4.addConstraint(Sketcher.Constraint("Perpendicular", 37, 52))
sketch4.addConstraint(Sketcher.Constraint("Perpendicular", 39, 54))
sketch4.addConstraint(Sketcher.Constraint("Perpendicular", 40, 55))
sketch4.addConstraint(Sketcher.Constraint("Perpendicular", 42, 57))
sketch4.addConstraint(Sketcher.Constraint("Perpendicular", 43, 58))
sketch4.addConstraint(Sketcher.Constraint("Horizontal", 1, 2, 2, 2))
sketch4.addConstraint(Sketcher.Constraint("Horizontal", 29, 2, 34, 2))
sketch4.addConstraint(Sketcher.Constraint("Horizontal", 28, 2, 35, 2))
sketch4.addConstraint(Sketcher.Constraint("Horizontal", 26, 2, 37, 2))
sketch4.addConstraint(Sketcher.Constraint("Horizontal", 25, 2, 38, 2))
sketch4.addConstraint(Sketcher.Constraint("Equal", 1, 3))
sketch4.addConstraint(Sketcher.Constraint("Equal", 3, 4))
sketch4.addConstraint(Sketcher.Constraint("Equal", 4, 6))
sketch4.addConstraint(Sketcher.Constraint("Equal", 6, 7))
sketch4.addConstraint(Sketcher.Constraint("Equal", 7, 9))
sketch4.addConstraint(Sketcher.Constraint("Equal", 9, 10))
sketch4.addConstraint(Sketcher.Constraint("Equal", 10, 12))
sketch4.addConstraint(Sketcher.Constraint("Equal", 12, 13))
sketch4.addConstraint(Sketcher.Constraint("Equal", 13, 15))
sketch4.addConstraint(Sketcher.Constraint("Radius", 2, Q("2.55 mm")))
sketch4.addConstraint(Sketcher.Constraint("DistanceY", -1, 1, 0, 2, Q("2.05 mm")))
sketch4.addConstraint(Sketcher.Constraint("DistanceX", -1, 1, 7, 2, Q("1.6899 mm")))
sketch4.addConstraint(Sketcher.Constraint("Distance", 0, Q("0.546121 mm")))
sketch4.addConstraint(Sketcher.Constraint("DistanceX", -1, 1, 4, 2, Q("1.017078 mm")))
sketch4.addConstraint(Sketcher.Constraint("DistanceY", -1, 1, 5, 2, Q("2.489618 mm")))
sketch4.addConstraint(Sketcher.Constraint("DistanceX", -1, 1, 6, 2, Q("1.20496 mm")))
pad3 = body.newObject("PartDesign::Pad", "Pad002")
pad3.Profile = sketch4
pad3.Length = 3
pad3.Reversed = True

# Sketch on XY plane
sketch5 = body.newObject("Sketcher::SketchObject", "Sketch004")
sketch5.AttachmentSupport = (doc.getObject("XY_Plane"), [""])
sketch5.MapMode = "FlatFace"
sketch5.AttachmentOffset = App.Placement(V(0, 0, -3), App.Rotation())
sketch5.addGeometry(Part.Circle(V(0, 0, 0), V(0, 0, 1), 1.4), False)
sketch5.addConstraint(Sketcher.Constraint("Coincident", 0, 3, -1, 1))
sketch5.addConstraint(Sketcher.Constraint("Diameter", 0, Q("2.8 mm")))
pocket2 = body.newObject("PartDesign::Pocket", "Pocket001")
pocket2.Profile = sketch5
pocket2.Type = "ThroughAll"

# Sketch on XY plane
sketch6 = body.newObject("Sketcher::SketchObject", "Sketch005")
sketch6.AttachmentSupport = (doc.getObject("XY_Plane"), [""])
sketch6.MapMode = "FlatFace"
sketch6.AttachmentOffset = App.Placement(V(0, 0, -2.2), App.Rotation())
sketch6.addGeometry(Part.Circle(V(7, 0, 0), V(0, 0, 1), 0.6), False)
sketch6.addConstraint(Sketcher.Constraint("PointOnObject", 0, 3, -1))
sketch6.addConstraint(Sketcher.Constraint("Diameter", 0, Q("1.2 mm")))
sketch6.addConstraint(Sketcher.Constraint("DistanceX", -1, 1, 0, 3, Q("7 mm")))
pocket3 = body.newObject("PartDesign::Pocket", "Pocket002")
pocket3.Profile = sketch6
pocket3.Type = "ThroughAll"
doc.recompute()

mirrored = body.newObject("PartDesign::Mirrored", "Mirrored")
mirrored.Originals = [pad2]
mirrored.MirrorPlane = (doc.getObject("YZ_Plane"), [""])
body.Tip = mirrored
doc.recompute()

mirrored2 = body.newObject("PartDesign::Mirrored", "Mirrored001")
mirrored2.Originals = [pocket3]
mirrored2.MirrorPlane = (doc.getObject("YZ_Plane"), [""])
body.Tip = mirrored2

doc.recompute()
